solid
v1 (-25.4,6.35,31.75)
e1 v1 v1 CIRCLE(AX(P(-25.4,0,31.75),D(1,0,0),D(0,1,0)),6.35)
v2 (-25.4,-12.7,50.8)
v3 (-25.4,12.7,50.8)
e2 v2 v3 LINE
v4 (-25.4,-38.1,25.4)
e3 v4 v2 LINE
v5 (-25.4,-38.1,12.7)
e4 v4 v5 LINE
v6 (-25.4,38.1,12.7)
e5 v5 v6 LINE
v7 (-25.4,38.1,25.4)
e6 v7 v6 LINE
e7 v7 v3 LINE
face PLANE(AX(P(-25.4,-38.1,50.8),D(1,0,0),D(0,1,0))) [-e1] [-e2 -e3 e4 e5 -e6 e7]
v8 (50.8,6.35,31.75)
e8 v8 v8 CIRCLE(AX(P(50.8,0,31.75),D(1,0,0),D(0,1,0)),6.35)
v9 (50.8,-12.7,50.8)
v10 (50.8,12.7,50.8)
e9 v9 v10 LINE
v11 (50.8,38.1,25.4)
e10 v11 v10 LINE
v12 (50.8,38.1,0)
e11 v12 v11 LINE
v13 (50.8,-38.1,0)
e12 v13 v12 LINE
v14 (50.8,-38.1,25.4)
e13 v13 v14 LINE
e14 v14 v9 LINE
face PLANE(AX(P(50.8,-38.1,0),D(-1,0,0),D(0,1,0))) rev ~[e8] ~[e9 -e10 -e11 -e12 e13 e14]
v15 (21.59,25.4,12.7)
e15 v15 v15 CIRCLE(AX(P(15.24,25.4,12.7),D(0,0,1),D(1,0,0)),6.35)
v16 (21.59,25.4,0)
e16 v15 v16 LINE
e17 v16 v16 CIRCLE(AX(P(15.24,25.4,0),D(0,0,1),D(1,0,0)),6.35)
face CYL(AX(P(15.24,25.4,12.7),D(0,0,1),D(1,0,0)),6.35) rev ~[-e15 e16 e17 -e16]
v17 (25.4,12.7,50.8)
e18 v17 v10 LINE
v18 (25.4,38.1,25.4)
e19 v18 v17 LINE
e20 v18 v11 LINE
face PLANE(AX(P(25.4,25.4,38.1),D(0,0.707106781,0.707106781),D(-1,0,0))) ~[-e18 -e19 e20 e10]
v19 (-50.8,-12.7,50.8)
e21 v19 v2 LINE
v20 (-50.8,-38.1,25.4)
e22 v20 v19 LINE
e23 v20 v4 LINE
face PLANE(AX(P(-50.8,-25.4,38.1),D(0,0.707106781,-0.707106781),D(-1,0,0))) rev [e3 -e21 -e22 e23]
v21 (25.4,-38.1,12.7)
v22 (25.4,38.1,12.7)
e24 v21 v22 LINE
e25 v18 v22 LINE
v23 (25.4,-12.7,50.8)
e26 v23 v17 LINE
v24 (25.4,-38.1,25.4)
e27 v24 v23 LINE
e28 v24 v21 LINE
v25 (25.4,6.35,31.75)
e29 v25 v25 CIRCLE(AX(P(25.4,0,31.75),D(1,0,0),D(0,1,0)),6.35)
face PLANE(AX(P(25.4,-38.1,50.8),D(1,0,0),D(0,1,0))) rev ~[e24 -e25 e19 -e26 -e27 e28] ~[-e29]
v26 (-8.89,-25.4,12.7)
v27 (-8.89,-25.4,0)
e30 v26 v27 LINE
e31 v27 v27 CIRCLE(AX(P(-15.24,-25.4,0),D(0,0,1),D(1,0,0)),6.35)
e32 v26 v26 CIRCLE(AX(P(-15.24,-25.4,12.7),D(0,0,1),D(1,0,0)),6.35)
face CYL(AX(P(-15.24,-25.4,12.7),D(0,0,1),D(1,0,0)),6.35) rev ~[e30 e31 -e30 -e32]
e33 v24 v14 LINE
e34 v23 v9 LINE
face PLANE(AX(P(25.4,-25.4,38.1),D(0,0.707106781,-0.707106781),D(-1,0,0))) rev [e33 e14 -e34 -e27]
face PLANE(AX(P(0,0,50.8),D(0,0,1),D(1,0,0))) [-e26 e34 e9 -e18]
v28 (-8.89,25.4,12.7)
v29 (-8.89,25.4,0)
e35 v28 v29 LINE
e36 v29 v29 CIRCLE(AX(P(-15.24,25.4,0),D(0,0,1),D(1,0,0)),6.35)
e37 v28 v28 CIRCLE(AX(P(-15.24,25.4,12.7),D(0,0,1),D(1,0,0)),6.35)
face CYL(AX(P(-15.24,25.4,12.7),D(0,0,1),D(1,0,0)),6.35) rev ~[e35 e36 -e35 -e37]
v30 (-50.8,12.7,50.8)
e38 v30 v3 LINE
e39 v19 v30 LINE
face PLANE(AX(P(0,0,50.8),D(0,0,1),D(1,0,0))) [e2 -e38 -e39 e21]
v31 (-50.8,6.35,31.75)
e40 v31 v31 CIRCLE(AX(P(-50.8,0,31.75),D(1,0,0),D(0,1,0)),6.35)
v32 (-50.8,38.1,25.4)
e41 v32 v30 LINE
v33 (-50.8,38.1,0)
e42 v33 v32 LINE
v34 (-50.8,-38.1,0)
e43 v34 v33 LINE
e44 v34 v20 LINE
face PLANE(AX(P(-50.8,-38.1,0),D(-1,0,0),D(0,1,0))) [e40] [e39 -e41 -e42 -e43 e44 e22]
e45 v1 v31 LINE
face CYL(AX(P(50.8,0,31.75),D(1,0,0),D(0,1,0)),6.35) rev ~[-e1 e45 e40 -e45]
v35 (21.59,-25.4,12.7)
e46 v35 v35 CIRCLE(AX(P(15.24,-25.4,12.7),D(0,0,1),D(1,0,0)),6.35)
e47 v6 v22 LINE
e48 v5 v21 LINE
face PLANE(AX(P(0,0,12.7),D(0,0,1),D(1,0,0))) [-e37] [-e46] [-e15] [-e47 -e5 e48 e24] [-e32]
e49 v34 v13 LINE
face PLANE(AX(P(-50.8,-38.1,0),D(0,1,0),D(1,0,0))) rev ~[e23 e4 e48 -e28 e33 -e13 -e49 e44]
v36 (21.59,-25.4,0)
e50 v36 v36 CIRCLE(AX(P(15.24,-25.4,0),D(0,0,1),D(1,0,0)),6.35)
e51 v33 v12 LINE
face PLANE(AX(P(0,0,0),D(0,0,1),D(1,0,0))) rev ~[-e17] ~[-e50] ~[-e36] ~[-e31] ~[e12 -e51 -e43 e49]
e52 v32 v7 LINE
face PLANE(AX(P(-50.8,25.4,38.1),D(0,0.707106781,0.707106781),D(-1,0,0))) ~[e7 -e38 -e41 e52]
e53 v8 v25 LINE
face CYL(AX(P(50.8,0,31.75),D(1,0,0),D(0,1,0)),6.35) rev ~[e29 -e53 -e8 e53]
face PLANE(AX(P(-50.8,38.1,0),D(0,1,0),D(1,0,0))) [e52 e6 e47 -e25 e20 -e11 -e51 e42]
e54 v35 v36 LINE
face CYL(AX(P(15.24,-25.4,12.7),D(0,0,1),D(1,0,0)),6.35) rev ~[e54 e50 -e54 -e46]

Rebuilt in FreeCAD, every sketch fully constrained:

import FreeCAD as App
import Part
import Sketcher
from FreeCAD import Vector
Q = App.Units.Quantity


def edges_at(feature, points):
    """Names of the edges that pass closest to the given points."""
    edges = feature.Shape.Edges
    near = lambda p: min(range(len(edges)), key=lambda i: edges[i].distToShape(Part.Vertex(*p))[0])
    return sorted({f"Edge{near(p) + 1}" for p in points})


def add_polygon(sketch, points):
    """Adds a closed chain of lines whose ends are joined by coincident constraints."""
    first, n = sketch.GeometryCount, len(points)
    for a, b in zip(points, points[1:] + points[:1]):
        sketch.addGeometry(Part.LineSegment(App.Vector(*a, 0), App.Vector(*b, 0)), False)
    for i in range(n):
        sketch.addConstraint(Sketcher.Constraint("Coincident", first + i, 2, first + (i + 1) % n, 1))

doc = App.newDocument("Part")
params = doc.addObject("Spreadsheet::Sheet", "Params")
for row, (alias, value) in enumerate([
    ("sketch1_width", "4 in"),
    ("sketch1_height", "3 in"),
    ("pad1_length", "2 in"),
    ("sketch2_width", "2 in"),
    ("sketch2_height", "3 in"),
    ("pocket1_length", "1.5 in"),
    ("chamfer_size", "1 in"),
    ("sketch3_diameter", "0.5 in"),
    ("sketch4_diameter", "0.5 in"),
], start=1):
    params.set(f"A{row}", alias)
    params.set(f"B{row}", "=" + value)
    params.setAlias(f"B{row}", alias)

body = doc.addObject("PartDesign::Body", "Body")

# Sketch on XY plane
sketch1 = doc.addObject("Sketcher::SketchObject", "Sketch")
body.addObject(sketch1)
sketch1.AttachmentSupport = (doc.XY_Plane, [""])
sketch1.MapMode = "FlatFace"
add_polygon(sketch1, [(-51, 38), (-51, -38), (51, -38), (51, 38)])  # lines 0-3
sketch1.addConstraint([
    Sketcher.Constraint("Vertical", 0),
    Sketcher.Constraint("Horizontal", 1),
    Sketcher.Constraint("Vertical", 2),
    Sketcher.Constraint("Horizontal", 3),
    Sketcher.Constraint("Symmetric", 0, 2, 2, 2, -1, 1),
    Sketcher.Constraint("DistanceX", 1, 1, 1, 2, Q("4 in")),
    Sketcher.Constraint("DistanceY", 0, 2, 0, 1, Q("3 in")),
])
sketch1.setExpression("Constraints[9]", "Params.sketch1_width")
sketch1.setExpression("Constraints[10]", "Params.sketch1_height")
pad1 = doc.addObject("PartDesign::Pad", "Pad")
body.addObject(pad1)
pad1.Profile = sketch1
pad1.setExpression("Length", "Params.pad1_length")

# Sketch on XY plane
sketch2 = doc.addObject("Sketcher::SketchObject", "Sketch001")
body.addObject(sketch2)
sketch2.AttachmentSupport = (doc.XY_Plane, [""])
sketch2.MapMode = "FlatFace"
sketch2.AttachmentOffset = App.Placement(Vector(0, 0, 2 * 25.4), App.Rotation())
add_polygon(sketch2, [(-25, 38), (-25, -38), (25, -38), (25, 38)])  # lines 0-3
sketch2.addConstraint([
    Sketcher.Constraint("Vertical", 0),
    Sketcher.Constraint("Horizontal", 1),
    Sketcher.Constraint("Vertical", 2),
    Sketcher.Constraint("Horizontal", 3),
    Sketcher.Constraint("Symmetric", 0, 2, 2, 2, -1, 1),
    Sketcher.Constraint("DistanceX", 1, 1, 1, 2, Q("2 in")),
    Sketcher.Constraint("DistanceY", 0, 2, 0, 1, Q("3 in")),
])
sketch2.setExpression("Constraints[9]", "Params.sketch2_width")
sketch2.setExpression("Constraints[10]", "Params.sketch2_height")
pocket1 = doc.addObject("PartDesign::Pocket", "Pocket")
body.addObject(pocket1)
pocket1.Profile = sketch2
pocket1.setExpression("Length", "Params.pocket1_length")
doc.recompute()

chamfer = doc.addObject("PartDesign::Chamfer", "Chamfer")
body.addObject(chamfer)
chamfer.Base = (pocket1, edges_at(pocket1, [
    (-38.1, -38.1, 50.8),
    (38.1, -38.1, 50.8),
    (-38.1, 38.1, 50.8),
    (38.1, 38.1, 50.8),
]))
chamfer.setExpression("Size", "Params.chamfer_size")

# Sketch on YZ plane
sketch3 = doc.addObject("Sketcher::SketchObject", "Sketch002")
body.addObject(sketch3)
sketch3.AttachmentSupport = (doc.YZ_Plane, [""])
sketch3.MapMode = "FlatFace"
sketch3.AttachmentOffset = App.Placement(Vector(0, 0, 2 * 25.4), App.Rotation())
sketch3.addGeometry(Part.Circle(Vector(0, 32, 0), Vector(0, 0, 1), 6), False)
sketch3.addConstraint([
    Sketcher.Constraint("PointOnObject", 0, 3, -2),
    Sketcher.Constraint("Diameter", 0, Q("0.5 in")),
    Sketcher.Constraint("DistanceY", -1, 1, 0, 3, Q("1.25 in")),
])
sketch3.setExpression("Constraints[1]", "Params.sketch3_diameter")
pocket2 = doc.addObject("PartDesign::Pocket", "Pocket001")
body.addObject(pocket2)
pocket2.Profile = sketch3
pocket2.Type = "ThroughAll"

# Sketch on XY plane
sketch4 = doc.addObject("Sketcher::SketchObject", "Sketch003")
body.addObject(sketch4)
sketch4.AttachmentSupport = (doc.XY_Plane, [""])
sketch4.MapMode = "FlatFace"
sketch4.AttachmentOffset = App.Placement(Vector(0, 0, 0.5 * 25.4), App.Rotation())
sketch4.addGeometry([
    Part.Circle(Vector(-15, -25, 0), Vector(0, 0, 1), 6),
    Part.Circle(Vector(-15, 25, 0), Vector(0, 0, 1), 6),
    Part.Circle(Vector(15, -25, 0), Vector(0, 0, 1), 6),
    Part.Circle(Vector(15, 25, 0), Vector(0, 0, 1), 6),
], False)
sketch4.addConstraint([
    Sketcher.Constraint("Equal", 0, 1),
    Sketcher.Constraint("Equal", 1, 2),
    Sketcher.Constraint("Equal", 2, 3),
    Sketcher.Constraint("Symmetric", 1, 3, 2, 3, -1, 1),
    Sketcher.Constraint("Symmetric", 0, 3, 3, 3, -1, 1),
    Sketcher.Constraint("Symmetric", 0, 3, 2, 3, -2),
    Sketcher.Constraint("Diameter", 0, Q("0.5 in")),
    Sketcher.Constraint("DistanceY", 0, 3, -1, 1, Q("1 in")),
    Sketcher.Constraint("DistanceX", 0, 3, -1, 1, Q("0.6 in")),
])
sketch4.setExpression("Constraints[6]", "Params.sketch4_diameter")
pocket3 = doc.addObject("PartDesign::Pocket", "Pocket002")
body.addObject(pocket3)
pocket3.Profile = sketch4
pocket3.Type = "ThroughAll"

doc.recompute()
